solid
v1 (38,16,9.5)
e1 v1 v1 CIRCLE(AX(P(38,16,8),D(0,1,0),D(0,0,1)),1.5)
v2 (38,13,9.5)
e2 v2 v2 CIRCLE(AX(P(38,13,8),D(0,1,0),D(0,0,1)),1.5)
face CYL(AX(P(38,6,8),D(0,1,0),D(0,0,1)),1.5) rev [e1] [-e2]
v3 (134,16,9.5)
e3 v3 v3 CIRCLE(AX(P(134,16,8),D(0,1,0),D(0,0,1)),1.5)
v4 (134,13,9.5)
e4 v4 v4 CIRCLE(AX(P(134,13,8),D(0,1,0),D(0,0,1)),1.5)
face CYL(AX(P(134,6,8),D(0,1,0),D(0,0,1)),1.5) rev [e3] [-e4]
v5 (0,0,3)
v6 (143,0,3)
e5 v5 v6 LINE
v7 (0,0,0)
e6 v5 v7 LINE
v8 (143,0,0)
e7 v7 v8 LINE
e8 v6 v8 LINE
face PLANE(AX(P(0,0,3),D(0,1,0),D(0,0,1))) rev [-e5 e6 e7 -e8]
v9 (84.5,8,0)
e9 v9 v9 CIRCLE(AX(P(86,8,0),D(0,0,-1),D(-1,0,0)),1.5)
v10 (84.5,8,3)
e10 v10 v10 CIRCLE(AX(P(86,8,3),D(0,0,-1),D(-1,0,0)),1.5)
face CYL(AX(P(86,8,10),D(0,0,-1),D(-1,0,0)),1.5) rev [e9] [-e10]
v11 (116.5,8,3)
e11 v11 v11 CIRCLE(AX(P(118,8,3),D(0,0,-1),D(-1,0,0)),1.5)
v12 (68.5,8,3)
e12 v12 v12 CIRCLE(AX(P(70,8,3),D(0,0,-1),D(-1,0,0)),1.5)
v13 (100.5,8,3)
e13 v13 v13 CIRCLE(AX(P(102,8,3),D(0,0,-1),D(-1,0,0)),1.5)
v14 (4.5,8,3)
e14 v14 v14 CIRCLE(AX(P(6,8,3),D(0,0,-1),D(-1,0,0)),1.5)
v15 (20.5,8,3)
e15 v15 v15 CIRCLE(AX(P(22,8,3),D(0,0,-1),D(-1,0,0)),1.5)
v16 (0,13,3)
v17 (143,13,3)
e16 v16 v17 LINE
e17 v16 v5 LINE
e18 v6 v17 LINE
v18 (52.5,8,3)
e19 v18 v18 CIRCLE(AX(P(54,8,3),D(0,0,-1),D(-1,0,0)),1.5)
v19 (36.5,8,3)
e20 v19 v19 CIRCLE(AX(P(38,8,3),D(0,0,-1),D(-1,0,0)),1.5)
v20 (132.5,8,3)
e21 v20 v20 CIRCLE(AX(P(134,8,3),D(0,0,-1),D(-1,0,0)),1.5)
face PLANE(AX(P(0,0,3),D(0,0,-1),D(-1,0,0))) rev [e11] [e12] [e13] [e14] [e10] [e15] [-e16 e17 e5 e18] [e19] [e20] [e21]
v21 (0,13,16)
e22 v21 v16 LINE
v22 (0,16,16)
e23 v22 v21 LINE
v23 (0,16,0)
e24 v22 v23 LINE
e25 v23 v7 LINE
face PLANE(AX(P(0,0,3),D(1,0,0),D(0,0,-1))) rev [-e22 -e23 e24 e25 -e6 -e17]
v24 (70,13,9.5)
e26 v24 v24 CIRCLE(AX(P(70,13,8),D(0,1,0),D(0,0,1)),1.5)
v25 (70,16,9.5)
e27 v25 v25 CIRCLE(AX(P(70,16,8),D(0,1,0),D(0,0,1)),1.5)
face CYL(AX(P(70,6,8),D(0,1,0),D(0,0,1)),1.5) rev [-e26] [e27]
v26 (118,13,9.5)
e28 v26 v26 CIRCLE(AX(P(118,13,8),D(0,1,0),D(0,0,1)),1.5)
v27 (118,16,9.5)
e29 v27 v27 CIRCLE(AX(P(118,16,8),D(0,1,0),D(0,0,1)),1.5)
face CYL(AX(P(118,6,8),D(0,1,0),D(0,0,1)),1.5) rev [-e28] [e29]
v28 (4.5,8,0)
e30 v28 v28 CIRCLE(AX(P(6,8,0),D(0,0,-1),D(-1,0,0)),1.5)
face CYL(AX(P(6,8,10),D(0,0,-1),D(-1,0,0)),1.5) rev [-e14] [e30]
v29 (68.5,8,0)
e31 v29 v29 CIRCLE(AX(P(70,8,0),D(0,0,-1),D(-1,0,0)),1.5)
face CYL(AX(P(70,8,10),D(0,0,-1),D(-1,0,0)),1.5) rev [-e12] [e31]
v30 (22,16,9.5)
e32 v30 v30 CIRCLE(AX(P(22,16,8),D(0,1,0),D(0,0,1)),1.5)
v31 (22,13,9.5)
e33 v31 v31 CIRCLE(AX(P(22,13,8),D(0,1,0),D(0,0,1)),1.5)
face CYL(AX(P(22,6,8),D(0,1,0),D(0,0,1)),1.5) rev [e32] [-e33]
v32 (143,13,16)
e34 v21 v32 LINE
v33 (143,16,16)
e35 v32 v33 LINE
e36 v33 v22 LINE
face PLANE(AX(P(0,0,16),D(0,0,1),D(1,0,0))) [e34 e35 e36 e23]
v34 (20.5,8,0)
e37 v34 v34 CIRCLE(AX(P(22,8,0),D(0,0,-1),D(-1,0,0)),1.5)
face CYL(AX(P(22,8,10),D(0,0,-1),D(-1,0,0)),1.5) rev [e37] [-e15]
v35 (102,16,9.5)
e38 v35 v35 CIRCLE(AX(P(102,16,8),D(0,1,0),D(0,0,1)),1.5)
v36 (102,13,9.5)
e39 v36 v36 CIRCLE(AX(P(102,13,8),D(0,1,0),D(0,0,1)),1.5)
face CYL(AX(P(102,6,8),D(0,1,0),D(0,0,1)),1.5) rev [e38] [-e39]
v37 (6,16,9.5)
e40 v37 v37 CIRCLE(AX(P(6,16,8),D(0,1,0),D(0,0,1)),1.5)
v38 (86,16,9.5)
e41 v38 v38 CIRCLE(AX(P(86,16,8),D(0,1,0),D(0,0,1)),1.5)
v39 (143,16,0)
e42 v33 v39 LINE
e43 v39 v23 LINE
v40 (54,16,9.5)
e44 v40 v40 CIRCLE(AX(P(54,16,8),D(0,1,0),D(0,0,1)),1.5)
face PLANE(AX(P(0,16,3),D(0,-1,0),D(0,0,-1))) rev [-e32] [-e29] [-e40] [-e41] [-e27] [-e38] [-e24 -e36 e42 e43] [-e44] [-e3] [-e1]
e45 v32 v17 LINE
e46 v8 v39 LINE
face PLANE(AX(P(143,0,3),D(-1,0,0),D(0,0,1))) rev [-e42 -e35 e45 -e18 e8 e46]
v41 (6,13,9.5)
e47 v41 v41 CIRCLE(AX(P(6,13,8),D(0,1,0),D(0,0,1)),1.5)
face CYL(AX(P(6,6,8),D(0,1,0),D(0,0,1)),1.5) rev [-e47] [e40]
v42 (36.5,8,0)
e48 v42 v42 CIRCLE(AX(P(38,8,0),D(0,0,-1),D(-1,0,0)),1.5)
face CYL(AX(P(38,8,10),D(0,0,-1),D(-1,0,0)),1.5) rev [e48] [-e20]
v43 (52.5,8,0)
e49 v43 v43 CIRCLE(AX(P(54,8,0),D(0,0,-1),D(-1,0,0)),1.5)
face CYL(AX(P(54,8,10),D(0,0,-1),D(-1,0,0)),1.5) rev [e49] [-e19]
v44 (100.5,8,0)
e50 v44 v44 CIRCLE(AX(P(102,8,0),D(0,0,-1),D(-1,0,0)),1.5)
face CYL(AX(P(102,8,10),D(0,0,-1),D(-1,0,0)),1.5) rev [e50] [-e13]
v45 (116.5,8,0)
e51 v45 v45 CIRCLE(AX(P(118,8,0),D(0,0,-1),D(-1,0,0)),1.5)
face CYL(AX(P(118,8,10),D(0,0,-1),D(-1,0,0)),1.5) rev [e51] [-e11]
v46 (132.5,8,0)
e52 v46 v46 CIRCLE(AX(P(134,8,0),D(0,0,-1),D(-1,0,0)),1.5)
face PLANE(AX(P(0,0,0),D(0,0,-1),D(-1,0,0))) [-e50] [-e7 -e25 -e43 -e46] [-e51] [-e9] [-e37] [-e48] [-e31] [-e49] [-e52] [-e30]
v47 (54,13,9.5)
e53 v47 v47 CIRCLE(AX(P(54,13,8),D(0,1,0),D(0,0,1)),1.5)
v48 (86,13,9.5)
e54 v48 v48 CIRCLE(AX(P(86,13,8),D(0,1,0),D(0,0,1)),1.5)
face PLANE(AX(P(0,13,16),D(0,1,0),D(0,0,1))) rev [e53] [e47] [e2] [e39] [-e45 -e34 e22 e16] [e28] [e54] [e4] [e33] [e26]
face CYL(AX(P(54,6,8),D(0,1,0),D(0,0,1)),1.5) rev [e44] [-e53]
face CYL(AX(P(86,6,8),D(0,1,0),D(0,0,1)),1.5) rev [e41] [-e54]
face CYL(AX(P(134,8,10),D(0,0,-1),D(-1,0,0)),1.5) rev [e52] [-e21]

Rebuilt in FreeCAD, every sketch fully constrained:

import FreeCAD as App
import Part
import Sketcher
from FreeCAD import Vector

doc = App.newDocument("Part")
body = doc.addObject("PartDesign::Body", "Body")

# Sketch on XY plane
sketch1 = body.newObject("Sketcher::SketchObject", "Sketch")
sketch1.AttachmentSupport = (doc.getObject("XY_Plane"), [""])
sketch1.MapMode = "FlatFace"
sketch1.addGeometry([
    Part.LineSegment(Vector(0, 16, 0), Vector(0, 0, 0)),
    Part.LineSegment(Vector(0, 0, 0), Vector(143, 0, 0)),
    Part.LineSegment(Vector(143, 0, 0), Vector(143, 16, 0)),
    Part.LineSegment(Vector(143, 16, 0), Vector(0, 16, 0)),
], False)
sketch1.addConstraint([
    Sketcher.Constraint("Coincident", 0, 2, 1, 1),
    Sketcher.Constraint("Coincident", 1, 2, 2, 1),
    Sketcher.Constraint("Coincident", 2, 2, 3, 1),
    Sketcher.Constraint("Coincident", 3, 2, 0, 1),
    Sketcher.Constraint("Vertical", 0),
    Sketcher.Constraint("Horizontal", 1),
    Sketcher.Constraint("Vertical", 2),
    Sketcher.Constraint("Horizontal", 3),
    Sketcher.Constraint("Coincident", 0, 2, -1, 1),
    Sketcher.Constraint("DistanceX", 1, 1, 1, 2, 143.0),
    Sketcher.Constraint("DistanceY", 0, 2, 0, 1, 16.0),
])
pad1 = body.newObject("PartDesign::Pad", "Pad")
pad1.Profile = sketch1
pad1.Length = 3

# Sketch on XY plane
sketch2 = body.newObject("Sketcher::SketchObject", "Sketch001")
sketch2.AttachmentSupport = (doc.getObject("XY_Plane"), [""])
sketch2.MapMode = "FlatFace"
sketch2.AttachmentOffset = App.Placement(Vector(0, 0, 3), App.Rotation())
sketch2.addGeometry([
    Part.LineSegment(Vector(0, 16, 0), Vector(0, 13, 0)),
    Part.LineSegment(Vector(0, 13, 0), Vector(143, 13, 0)),
    Part.LineSegment(Vector(143, 13, 0), Vector(143, 16, 0)),
    Part.LineSegment(Vector(143, 16, 0), Vector(0, 16, 0)),
], False)
sketch2.addConstraint([
    Sketcher.Constraint("Coincident", 0, 2, 1, 1),
    Sketcher.Constraint("Coincident", 1, 2, 2, 1),
    Sketcher.Constraint("Coincident", 2, 2, 3, 1),
    Sketcher.Constraint("Coincident", 3, 2, 0, 1),
    Sketcher.Constraint("Vertical", 0),
    Sketcher.Constraint("Horizontal", 1),
    Sketcher.Constraint("Vertical", 2),
    Sketcher.Constraint("Horizontal", 3),
    Sketcher.Constraint("PointOnObject", 0, 2, -2),
    Sketcher.Constraint("DistanceX", 1, 1, 1, 2, 143.0),
    Sketcher.Constraint("DistanceY", 0, 2, 0, 1, 3.0),
    Sketcher.Constraint("DistanceY", -1, 1, 0, 2, 13.0),
])
pad2 = body.newObject("PartDesign::Pad", "Pad001")
pad2.Profile = sketch2
pad2.Length = 13

# Sketch on XY plane
sketch3 = body.newObject("Sketcher::SketchObject", "Sketch002")
sketch3.AttachmentSupport = (doc.getObject("XY_Plane"), [""])
sketch3.MapMode = "FlatFace"
sketch3.addGeometry(Part.Circle(Vector(134, 8, 0), Vector(0, 0, 1), 1.5), False)
sketch3.addConstraint([
    Sketcher.Constraint("Diameter", 0, 3.0),
    Sketcher.Constraint("DistanceX", -1, 1, 0, 3, 134.0),
    Sketcher.Constraint("DistanceY", -1, 1, 0, 3, 8.0),
])
pocket1 = body.newObject("PartDesign::Pocket", "Pocket")
pocket1.Profile = sketch3
pocket1.Length = 10
pocket1.Reversed = True
doc.recompute()

linearpattern = body.newObject("PartDesign::LinearPattern", "LinearPattern")
linearpattern.Originals = [pocket1]
linearpattern.Direction = (doc.getObject("X_Axis"), [""])
linearpattern.Mode = "offset"
linearpattern.Offset = 16
linearpattern.Occurrences = 9
linearpattern.Reversed = True
body.Tip = linearpattern

# Sketch on XZ plane
sketch4 = body.newObject("Sketcher::SketchObject", "Sketch003")
sketch4.AttachmentSupport = (doc.getObject("XZ_Plane"), [""])
sketch4.MapMode = "FlatFace"
sketch4.AttachmentOffset = App.Placement(Vector(0, 0, -16), App.Rotation())
sketch4.addGeometry(Part.Circle(Vector(134, 8, 0), Vector(0, 0, 1), 1.5), False)
sketch4.addConstraint([
    Sketcher.Constraint("Diameter", 0, 3.0),
    Sketcher.Constraint("DistanceX", -1, 1, 0, 3, 134.0),
    Sketcher.Constraint("DistanceY", -1, 1, 0, 3, 8.0),
])
pocket2 = body.newObject("PartDesign::Pocket", "Pocket001")
pocket2.Profile = sketch4
pocket2.Length = 10
pocket2.Reversed = True
doc.recompute()

linearpattern2 = body.newObject("PartDesign::LinearPattern", "LinearPattern001")
linearpattern2.Originals = [pocket2]
linearpattern2.Direction = (doc.getObject("X_Axis"), [""])
linearpattern2.Mode = "offset"
linearpattern2.Offset = 16
linearpattern2.Occurrences = 9
linearpattern2.Reversed = True
body.Tip = linearpattern2

doc.recompute()
